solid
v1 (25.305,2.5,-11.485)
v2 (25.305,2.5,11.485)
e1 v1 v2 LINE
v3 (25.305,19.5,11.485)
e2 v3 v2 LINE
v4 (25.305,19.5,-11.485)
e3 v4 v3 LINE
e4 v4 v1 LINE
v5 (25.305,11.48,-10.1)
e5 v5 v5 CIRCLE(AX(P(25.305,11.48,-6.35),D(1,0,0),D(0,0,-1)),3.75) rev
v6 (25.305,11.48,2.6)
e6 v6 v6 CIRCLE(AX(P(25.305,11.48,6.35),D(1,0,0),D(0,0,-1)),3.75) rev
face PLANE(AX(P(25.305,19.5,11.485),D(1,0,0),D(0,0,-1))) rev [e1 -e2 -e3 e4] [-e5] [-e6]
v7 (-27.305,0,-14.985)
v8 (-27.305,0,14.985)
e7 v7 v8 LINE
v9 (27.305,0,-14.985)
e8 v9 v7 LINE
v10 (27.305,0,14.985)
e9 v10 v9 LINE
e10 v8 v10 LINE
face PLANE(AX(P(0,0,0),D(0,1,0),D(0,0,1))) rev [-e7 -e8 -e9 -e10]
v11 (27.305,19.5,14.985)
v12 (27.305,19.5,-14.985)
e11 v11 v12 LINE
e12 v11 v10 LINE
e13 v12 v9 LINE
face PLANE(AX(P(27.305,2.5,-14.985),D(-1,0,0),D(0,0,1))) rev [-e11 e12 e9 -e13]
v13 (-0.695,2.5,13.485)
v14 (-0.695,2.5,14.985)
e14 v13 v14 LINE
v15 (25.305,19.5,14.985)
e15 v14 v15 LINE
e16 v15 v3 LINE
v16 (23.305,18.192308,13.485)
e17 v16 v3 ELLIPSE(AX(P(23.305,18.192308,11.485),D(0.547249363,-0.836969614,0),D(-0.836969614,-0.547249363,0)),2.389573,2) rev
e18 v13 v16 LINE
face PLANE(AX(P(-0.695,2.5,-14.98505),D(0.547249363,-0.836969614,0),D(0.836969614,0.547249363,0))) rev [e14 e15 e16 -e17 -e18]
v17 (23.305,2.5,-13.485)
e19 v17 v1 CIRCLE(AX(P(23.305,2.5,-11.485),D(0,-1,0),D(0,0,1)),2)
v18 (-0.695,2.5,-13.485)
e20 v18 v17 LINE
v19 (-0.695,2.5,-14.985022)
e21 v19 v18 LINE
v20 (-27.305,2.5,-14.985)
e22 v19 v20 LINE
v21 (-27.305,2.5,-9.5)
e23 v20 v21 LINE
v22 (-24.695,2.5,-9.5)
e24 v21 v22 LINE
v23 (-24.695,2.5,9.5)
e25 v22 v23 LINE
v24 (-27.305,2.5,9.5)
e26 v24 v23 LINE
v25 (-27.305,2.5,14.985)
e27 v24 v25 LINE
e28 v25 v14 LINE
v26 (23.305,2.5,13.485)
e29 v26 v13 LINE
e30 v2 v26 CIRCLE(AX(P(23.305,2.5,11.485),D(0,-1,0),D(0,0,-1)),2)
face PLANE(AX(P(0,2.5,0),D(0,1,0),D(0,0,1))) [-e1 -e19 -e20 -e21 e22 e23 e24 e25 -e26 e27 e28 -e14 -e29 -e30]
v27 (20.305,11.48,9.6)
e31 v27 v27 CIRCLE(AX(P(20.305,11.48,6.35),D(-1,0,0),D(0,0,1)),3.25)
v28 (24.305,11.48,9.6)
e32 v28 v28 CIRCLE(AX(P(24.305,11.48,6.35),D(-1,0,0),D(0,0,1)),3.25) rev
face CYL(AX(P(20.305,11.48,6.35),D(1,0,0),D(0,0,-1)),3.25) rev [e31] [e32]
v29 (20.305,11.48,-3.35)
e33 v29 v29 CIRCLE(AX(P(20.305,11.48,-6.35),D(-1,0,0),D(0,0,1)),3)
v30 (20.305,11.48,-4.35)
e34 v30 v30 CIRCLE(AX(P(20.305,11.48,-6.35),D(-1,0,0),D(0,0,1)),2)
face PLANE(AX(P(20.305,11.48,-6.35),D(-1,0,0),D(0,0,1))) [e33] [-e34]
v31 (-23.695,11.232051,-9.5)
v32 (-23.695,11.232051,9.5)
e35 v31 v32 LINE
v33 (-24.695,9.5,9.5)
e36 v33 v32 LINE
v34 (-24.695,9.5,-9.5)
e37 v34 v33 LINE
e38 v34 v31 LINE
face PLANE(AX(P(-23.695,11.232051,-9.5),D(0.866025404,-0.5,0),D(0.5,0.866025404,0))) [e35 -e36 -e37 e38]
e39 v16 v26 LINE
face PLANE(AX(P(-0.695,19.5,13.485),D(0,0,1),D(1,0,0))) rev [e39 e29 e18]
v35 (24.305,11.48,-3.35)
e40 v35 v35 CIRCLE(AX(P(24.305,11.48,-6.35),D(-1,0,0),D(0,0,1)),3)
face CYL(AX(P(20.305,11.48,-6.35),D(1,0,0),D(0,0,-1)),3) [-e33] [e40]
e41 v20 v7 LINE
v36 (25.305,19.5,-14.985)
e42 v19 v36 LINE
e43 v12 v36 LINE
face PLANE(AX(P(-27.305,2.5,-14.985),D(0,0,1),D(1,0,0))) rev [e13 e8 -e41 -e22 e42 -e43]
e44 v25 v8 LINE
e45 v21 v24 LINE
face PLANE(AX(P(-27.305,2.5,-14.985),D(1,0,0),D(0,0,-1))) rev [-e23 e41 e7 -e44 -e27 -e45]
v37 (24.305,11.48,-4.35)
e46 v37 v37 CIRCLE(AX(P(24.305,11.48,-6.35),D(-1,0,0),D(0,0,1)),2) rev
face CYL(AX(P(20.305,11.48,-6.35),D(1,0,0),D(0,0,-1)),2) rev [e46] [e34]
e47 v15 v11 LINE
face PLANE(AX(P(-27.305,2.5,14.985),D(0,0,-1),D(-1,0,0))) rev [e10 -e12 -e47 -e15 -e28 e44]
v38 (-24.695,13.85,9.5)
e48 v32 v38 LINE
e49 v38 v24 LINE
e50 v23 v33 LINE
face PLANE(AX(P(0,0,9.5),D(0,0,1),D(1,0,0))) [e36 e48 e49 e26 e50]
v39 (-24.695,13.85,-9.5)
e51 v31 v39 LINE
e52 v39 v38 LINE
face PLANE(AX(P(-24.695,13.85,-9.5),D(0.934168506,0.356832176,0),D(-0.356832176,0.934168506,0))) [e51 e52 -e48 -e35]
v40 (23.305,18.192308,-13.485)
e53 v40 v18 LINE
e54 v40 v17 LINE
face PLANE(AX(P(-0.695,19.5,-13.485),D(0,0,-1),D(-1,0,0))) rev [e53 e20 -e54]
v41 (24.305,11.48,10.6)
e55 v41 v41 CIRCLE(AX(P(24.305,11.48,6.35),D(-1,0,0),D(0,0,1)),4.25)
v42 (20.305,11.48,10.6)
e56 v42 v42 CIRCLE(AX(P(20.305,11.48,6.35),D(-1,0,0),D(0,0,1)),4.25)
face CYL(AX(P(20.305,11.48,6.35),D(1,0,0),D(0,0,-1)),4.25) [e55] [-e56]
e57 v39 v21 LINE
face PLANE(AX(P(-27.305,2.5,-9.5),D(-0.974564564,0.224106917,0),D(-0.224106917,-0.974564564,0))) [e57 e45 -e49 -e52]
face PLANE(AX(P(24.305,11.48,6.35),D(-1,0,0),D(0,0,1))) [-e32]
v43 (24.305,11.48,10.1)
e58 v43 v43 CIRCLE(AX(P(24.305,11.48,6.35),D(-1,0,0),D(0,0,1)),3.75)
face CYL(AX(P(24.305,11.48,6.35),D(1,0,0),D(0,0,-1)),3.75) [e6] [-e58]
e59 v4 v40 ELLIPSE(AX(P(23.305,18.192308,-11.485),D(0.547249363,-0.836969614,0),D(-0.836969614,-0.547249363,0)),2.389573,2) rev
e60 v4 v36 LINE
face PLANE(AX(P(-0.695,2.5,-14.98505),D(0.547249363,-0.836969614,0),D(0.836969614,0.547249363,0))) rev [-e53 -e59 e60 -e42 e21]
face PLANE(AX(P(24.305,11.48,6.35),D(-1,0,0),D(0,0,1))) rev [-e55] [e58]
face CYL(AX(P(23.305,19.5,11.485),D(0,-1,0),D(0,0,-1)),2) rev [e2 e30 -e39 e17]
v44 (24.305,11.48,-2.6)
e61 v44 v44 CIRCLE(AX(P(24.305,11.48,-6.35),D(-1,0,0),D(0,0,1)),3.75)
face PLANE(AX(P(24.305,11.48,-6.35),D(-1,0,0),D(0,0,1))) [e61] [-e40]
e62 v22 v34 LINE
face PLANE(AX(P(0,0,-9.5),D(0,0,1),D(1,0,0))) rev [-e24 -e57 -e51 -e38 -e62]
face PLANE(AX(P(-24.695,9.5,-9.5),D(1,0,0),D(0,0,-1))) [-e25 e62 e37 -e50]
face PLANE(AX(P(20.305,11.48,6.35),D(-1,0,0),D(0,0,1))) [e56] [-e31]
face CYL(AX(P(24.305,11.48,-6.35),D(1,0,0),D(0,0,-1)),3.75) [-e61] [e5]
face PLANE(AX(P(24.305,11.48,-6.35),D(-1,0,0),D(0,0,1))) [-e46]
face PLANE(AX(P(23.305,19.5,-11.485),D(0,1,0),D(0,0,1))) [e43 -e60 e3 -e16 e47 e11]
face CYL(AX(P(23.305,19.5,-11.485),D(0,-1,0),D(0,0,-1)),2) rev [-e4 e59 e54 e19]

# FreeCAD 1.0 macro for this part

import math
import FreeCAD as App
import Part
import Sketcher

V = App.Vector
Q = App.Units.Quantity

doc = App.newDocument("Part")
body = doc.addObject("PartDesign::Body", "Body")

# Sketch on XZ plane
sketch1 = body.newObject("Sketcher::SketchObject", "Sketch")
sketch1.AttachmentSupport = (doc.getObject("XZ_Plane"), [""])
sketch1.MapMode = "FlatFace"
sketch1.addGeometry(Part.LineSegment(V(-27, -15, 0), V(-27, 15, 0)), False)
sketch1.addGeometry(Part.LineSegment(V(-27, 15, 0), V(27, 15, 0)), False)
sketch1.addGeometry(Part.LineSegment(V(27, 15, 0), V(27, -15, 0)), False)
sketch1.addGeometry(Part.LineSegment(V(27, -15, 0), V(-27, -15, 0)), False)
sketch1.addConstraint(Sketcher.Constraint("Coincident", 0, 2, 1, 1))
sketch1.addConstraint(Sketcher.Constraint("Coincident", 1, 2, 2, 1))
sketch1.addConstraint(Sketcher.Constraint("Coincident", 2, 2, 3, 1))
sketch1.addConstraint(Sketcher.Constraint("Coincident", 3, 2, 0, 1))
sketch1.addConstraint(Sketcher.Constraint("Vertical", 0))
sketch1.addConstraint(Sketcher.Constraint("Horizontal", 1))
sketch1.addConstraint(Sketcher.Constraint("Vertical", 2))
sketch1.addConstraint(Sketcher.Constraint("Horizontal", 3))
sketch1.addConstraint(Sketcher.Constraint("Symmetric", 0, 2, 2, 2, -1, 1))
sketch1.addConstraint(Sketcher.Constraint("DistanceX", 1, 1, 1, 2, Q("54.61 mm")))
sketch1.addConstraint(Sketcher.Constraint("DistanceY", 0, 1, 0, 2, Q("29.97 mm")))
pad1 = body.newObject("PartDesign::Pad", "Pad")
pad1.Profile = sketch1
pad1.Length = 2.5
pad1.Reversed = True

# Sketch on XZ plane
sketch2 = body.newObject("Sketcher::SketchObject", "Sketch001")
sketch2.AttachmentSupport = (doc.getObject("XZ_Plane"), [""])
sketch2.MapMode = "FlatFace"
sketch2.AttachmentOffset = App.Placement(V(0, 0, -2.5), App.Rotation())
sketch2.addGeometry(Part.LineSegment(V(-0.7, 15, 0), V(27.3, 15, 0)), False)
sketch2.addGeometry(Part.LineSegment(V(27.3, 15, 0), V(27.3, -15, 0)), False)
sketch2.addGeometry(Part.LineSegment(V(27.3, -15, 0), V(-0.7, -15, 0)), False)
sketch2.addGeometry(Part.LineSegment(V(-0.7, -15, 0), V(-0.7, -13.5, 0)), False)
sketch2.addGeometry(Part.LineSegment(V(-0.7, -13.5, 0), V(23.3, -13.5, 0)), False)
sketch2.addGeometry(Part.ArcOfCircle(Part.Circle(V(23.3, -11.5, 0), V(0, 0, 1), 2), math.radians(-90), math.radians(0)), False)
sketch2.addGeometry(Part.LineSegment(V(25.3, -11.5, 0), V(25.3, 11.5, 0)), False)
sketch2.addGeometry(Part.ArcOfCircle(Part.Circle(V(23.3, 11.5, 0), V(0, 0, 1), 2), math.radians(0), math.radians(90)), False)
sketch2.addGeometry(Part.LineSegment(V(23.3, 13.5, 0), V(-0.7, 13.5, 0)), False)
sketch2.addGeometry(Part.LineSegment(V(-0.7, 13.5, 0), V(-0.7, 15, 0)), False)
sketch2.addConstraint(Sketcher.Constraint("Coincident", 0, 2, 1, 1))
sketch2.addConstraint(Sketcher.Constraint("Coincident", 1, 2, 2, 1))
sketch2.addConstraint(Sketcher.Constraint("Coincident", 2, 2, 3, 1))
sketch2.addConstraint(Sketcher.Constraint("Coincident", 3, 2, 4, 1))
sketch2.addConstraint(Sketcher.Constraint("Tangent", 4, 2, 5, 1))
sketch2.addConstraint(Sketcher.Constraint("Tangent", 5, 2, 6, 1))
sketch2.addConstraint(Sketcher.Constraint("Tangent", 6, 2, 7, 1))
sketch2.addConstraint(Sketcher.Constraint("Tangent", 7, 2, 8, 1))
sketch2.addConstraint(Sketcher.Constraint("Coincident", 8, 2, 9, 1))
sketch2.addConstraint(Sketcher.Constraint("Coincident", 9, 2, 0, 1))
sketch2.addConstraint(Sketcher.Constraint("Horizontal", 0))
sketch2.addConstraint(Sketcher.Constraint("Vertical", 1))
sketch2.addConstraint(Sketcher.Constraint("Horizontal", 2))
sketch2.addConstraint(Sketcher.Constraint("Vertical", 3))
sketch2.addConstraint(Sketcher.Constraint("Horizontal", 4))
sketch2.addConstraint(Sketcher.Constraint("Vertical", 6))
sketch2.addConstraint(Sketcher.Constraint("Horizontal", 8))
sketch2.addConstraint(Sketcher.Constraint("Vertical", 9))
sketch2.addConstraint(Sketcher.Constraint("Equal", 5, 7))
sketch2.addConstraint(Sketcher.Constraint("Symmetric", 3, 2, 8, 2, -1))
sketch2.addConstraint(Sketcher.Constraint("Equal", 3, 9))
sketch2.addConstraint(Sketcher.Constraint("Radius", 5, Q("2 mm")))
sketch2.addConstraint(Sketcher.Constraint("DistanceX", 0, 1, 0, 2, Q("28 mm")))
sketch2.addConstraint(Sketcher.Constraint("DistanceX", 4, 1, 4, 2, Q("24 mm")))
sketch2.addConstraint(Sketcher.Constraint("DistanceY", 3, 1, 3, 2, Q("1.5 mm")))
sketch2.addConstraint(Sketcher.Constraint("DistanceY", 1, 2, 1, 1, Q("29.97 mm")))
sketch2.addConstraint(Sketcher.Constraint("DistanceX", -1, 1, 5, 3, Q("23.305 mm")))
pad2 = body.newObject("PartDesign::Pad", "Pad001")
pad2.Profile = sketch2
pad2.Length = 17
pad2.Reversed = True

# Sketch on XY plane
sketch3 = body.newObject("Sketcher::SketchObject", "Sketch002")
sketch3.AttachmentSupport = (doc.getObject("XY_Plane"), [""])
sketch3.MapMode = "FlatFace"
sketch3.AttachmentOffset = App.Placement(V(0, 0, 14.985), App.Rotation())
sketch3.addGeometry(Part.LineSegment(V(-1, 2, 0), V(25, 20, 0)), False)
sketch3.addGeometry(Part.LineSegment(V(25, 20, 0), V(-1, 20, 0)), False)
sketch3.addGeometry(Part.LineSegment(V(-1, 20, 0), V(-1, 2, 0)), False)
sketch3.addConstraint(Sketcher.Constraint("Coincident", 0, 2, 1, 1))
sketch3.addConstraint(Sketcher.Constraint("Coincident", 1, 2, 2, 1))
sketch3.addConstraint(Sketcher.Constraint("Coincident", 2, 2, 0, 1))
sketch3.addConstraint(Sketcher.Constraint("Horizontal", 1))
sketch3.addConstraint(Sketcher.Constraint("Vertical", 2))
sketch3.addConstraint(Sketcher.Constraint("DistanceX", 1, 2, 1, 1, Q("26 mm")))
sketch3.addConstraint(Sketcher.Constraint("DistanceY", 2, 2, 2, 1, Q("17 mm")))
sketch3.addConstraint(Sketcher.Constraint("DistanceY", -1, 1, 0, 2, Q("19.5 mm")))
sketch3.addConstraint(Sketcher.Constraint("DistanceX", -1, 1, 0, 2, Q("25.305 mm")))
pocket1 = body.newObject("PartDesign::Pocket", "Pocket")
pocket1.Profile = sketch3
pocket1.Type = "ThroughAll"

# Sketch on XY plane
sketch4 = body.newObject("Sketcher::SketchObject", "Sketch003")
sketch4.AttachmentSupport = (doc.getObject("XY_Plane"), [""])
sketch4.MapMode = "FlatFace"
sketch4.addGeometry(Part.LineSegment(V(-24.7, 13.8, 0), V(-27.3, 2.5, 0)), False)
sketch4.addGeometry(Part.LineSegment(V(-27.3, 2.5, 0), V(-24.7, 2.5, 0)), False)
sketch4.addGeometry(Part.LineSegment(V(-24.7, 2.5, 0), V(-24.7, 9.5, 0)), False)
sketch4.addGeometry(Part.LineSegment(V(-24.7, 9.5, 0), V(-23.7, 11.2, 0)), False)
sketch4.addGeometry(Part.LineSegment(V(-23.7, 11.2, 0), V(-24.7, 13.8, 0)), False)
sketch4.addConstraint(Sketcher.Constraint("Coincident", 0, 2, 1, 1))
sketch4.addConstraint(Sketcher.Constraint("Coincident", 1, 2, 2, 1))
sketch4.addConstraint(Sketcher.Constraint("Coincident", 2, 2, 3, 1))
sketch4.addConstraint(Sketcher.Constraint("Coincident", 3, 2, 4, 1))
sketch4.addConstraint(Sketcher.Constraint("Coincident", 4, 2, 0, 1))
sketch4.addConstraint(Sketcher.Constraint("Horizontal", 1))
sketch4.addConstraint(Sketcher.Constraint("Vertical", 2))
sketch4.addConstraint(Sketcher.Constraint("Vertical", 2, 2, 4, 2))
sketch4.addConstraint(Sketcher.Constraint("DistanceY", 2, 1, 2, 2, Q("7 mm")))
sketch4.addConstraint(Sketcher.Constraint("Angle", 3, Q("60 deg")))
sketch4.addConstraint(Sketcher.Constraint("Distance", 3, Q("2 mm")))
sketch4.addConstraint(Sketcher.Constraint("DistanceX", 1, 1, 1, 2, Q("2.61 mm")))
sketch4.addConstraint(Sketcher.Constraint("DistanceY", -1, 1, 0, 2, Q("2.5 mm")))
sketch4.addConstraint(Sketcher.Constraint("DistanceY", -1, 1, 4, 2, Q("13.85 mm")))
sketch4.addConstraint(Sketcher.Constraint("DistanceX", 0, 2, -1, 1, Q("27.305 mm")))
pad3 = body.newObject("PartDesign::Pad", "Pad002")
pad3.Profile = sketch4
pad3.Type = "TwoLengths"
pad3.Length = 9.5
pad3.Length2 = 9.5

# Sketch on YZ plane
sketch5 = body.newObject("Sketcher::SketchObject", "Sketch004")
sketch5.AttachmentSupport = (doc.getObject("YZ_Plane"), [""])
sketch5.MapMode = "FlatFace"
sketch5.AttachmentOffset = App.Placement(V(0, 0, 25.305), App.Rotation())
sketch5.addGeometry(Part.Circle(V(11.5, -6.3, 0), V(0, 0, 1), 3.8), False)
sketch5.addGeometry(Part.Circle(V(11.5, 6.3, 0), V(0, 0, 1), 3.8), False)
sketch5.addConstraint(Sketcher.Constraint("Equal", 0, 1))
sketch5.addConstraint(Sketcher.Constraint("Symmetric", 0, 3, 1, 3, -1))
sketch5.addConstraint(Sketcher.Constraint("Diameter", 0, Q("7.5 mm")))
sketch5.addConstraint(Sketcher.Constraint("DistanceY", 0, 3, 1, 3, Q("12.7 mm")))
sketch5.addConstraint(Sketcher.Constraint("DistanceX", -1, 1, 0, 3, Q("11.48 mm")))
pad4 = body.newObject("PartDesign::Pad", "Pad003")
pad4.Profile = sketch5
pad4.Length = 1
pad4.Reversed = True

# Sketch on YZ plane
sketch6 = body.newObject("Sketcher::SketchObject", "Sketch005")
sketch6.AttachmentSupport = (doc.getObject("YZ_Plane"), [""])
sketch6.MapMode = "FlatFace"
sketch6.AttachmentOffset = App.Placement(V(0, 0, 24.305), App.Rotation())
sketch6.addGeometry(Part.Circle(V(11.5, -6.3, 0), V(0, 0, 1), 3), False)
sketch6.addGeometry(Part.Circle(V(11.5, -6.3, 0), V(0, 0, 1), 2), False)
sketch6.addConstraint(Sketcher.Constraint("Coincident", 1, 3, 0, 3))
sketch6.addConstraint(Sketcher.Constraint("Diameter", 0, Q("6 mm")))
sketch6.addConstraint(Sketcher.Constraint("Diameter", 1, Q("4 mm")))
sketch6.addConstraint(Sketcher.Constraint("DistanceX", -1, 1, 0, 3, Q("11.48 mm")))
sketch6.addConstraint(Sketcher.Constraint("DistanceY", 0, 3, -1, 1, Q("6.35 mm")))
pad5 = body.newObject("PartDesign::Pad", "Pad004")
pad5.Profile = sketch6
pad5.Length = 4
pad5.Reversed = True

# Sketch on YZ plane
sketch7 = body.newObject("Sketcher::SketchObject", "Sketch006")
sketch7.AttachmentSupport = (doc.getObject("YZ_Plane"), [""])
sketch7.MapMode = "FlatFace"
sketch7.AttachmentOffset = App.Placement(V(0, 0, 24.305), App.Rotation())
sketch7.addGeometry(Part.Circle(V(11.5, 6.3, 0), V(0, 0, 1), 4.2), False)
sketch7.addGeometry(Part.Circle(V(11.5, 6.3, 0), V(0, 0, 1), 3.2), False)
sketch7.addConstraint(Sketcher.Constraint("Coincident", 1, 3, 0, 3))
sketch7.addConstraint(Sketcher.Constraint("Diameter", 0, Q("8.5 mm")))
sketch7.addConstraint(Sketcher.Constraint("Diameter", 1, Q("6.5 mm")))
sketch7.addConstraint(Sketcher.Constraint("DistanceX", -1, 1, 0, 3, Q("11.48 mm")))
sketch7.addConstraint(Sketcher.Constraint("DistanceY", -1, 1, 0, 3, Q("6.35 mm")))
pad6 = body.newObject("PartDesign::Pad", "Pad005")
pad6.Profile = sketch7
pad6.Length = 4
pad6.Reversed = True

doc.recompute()
